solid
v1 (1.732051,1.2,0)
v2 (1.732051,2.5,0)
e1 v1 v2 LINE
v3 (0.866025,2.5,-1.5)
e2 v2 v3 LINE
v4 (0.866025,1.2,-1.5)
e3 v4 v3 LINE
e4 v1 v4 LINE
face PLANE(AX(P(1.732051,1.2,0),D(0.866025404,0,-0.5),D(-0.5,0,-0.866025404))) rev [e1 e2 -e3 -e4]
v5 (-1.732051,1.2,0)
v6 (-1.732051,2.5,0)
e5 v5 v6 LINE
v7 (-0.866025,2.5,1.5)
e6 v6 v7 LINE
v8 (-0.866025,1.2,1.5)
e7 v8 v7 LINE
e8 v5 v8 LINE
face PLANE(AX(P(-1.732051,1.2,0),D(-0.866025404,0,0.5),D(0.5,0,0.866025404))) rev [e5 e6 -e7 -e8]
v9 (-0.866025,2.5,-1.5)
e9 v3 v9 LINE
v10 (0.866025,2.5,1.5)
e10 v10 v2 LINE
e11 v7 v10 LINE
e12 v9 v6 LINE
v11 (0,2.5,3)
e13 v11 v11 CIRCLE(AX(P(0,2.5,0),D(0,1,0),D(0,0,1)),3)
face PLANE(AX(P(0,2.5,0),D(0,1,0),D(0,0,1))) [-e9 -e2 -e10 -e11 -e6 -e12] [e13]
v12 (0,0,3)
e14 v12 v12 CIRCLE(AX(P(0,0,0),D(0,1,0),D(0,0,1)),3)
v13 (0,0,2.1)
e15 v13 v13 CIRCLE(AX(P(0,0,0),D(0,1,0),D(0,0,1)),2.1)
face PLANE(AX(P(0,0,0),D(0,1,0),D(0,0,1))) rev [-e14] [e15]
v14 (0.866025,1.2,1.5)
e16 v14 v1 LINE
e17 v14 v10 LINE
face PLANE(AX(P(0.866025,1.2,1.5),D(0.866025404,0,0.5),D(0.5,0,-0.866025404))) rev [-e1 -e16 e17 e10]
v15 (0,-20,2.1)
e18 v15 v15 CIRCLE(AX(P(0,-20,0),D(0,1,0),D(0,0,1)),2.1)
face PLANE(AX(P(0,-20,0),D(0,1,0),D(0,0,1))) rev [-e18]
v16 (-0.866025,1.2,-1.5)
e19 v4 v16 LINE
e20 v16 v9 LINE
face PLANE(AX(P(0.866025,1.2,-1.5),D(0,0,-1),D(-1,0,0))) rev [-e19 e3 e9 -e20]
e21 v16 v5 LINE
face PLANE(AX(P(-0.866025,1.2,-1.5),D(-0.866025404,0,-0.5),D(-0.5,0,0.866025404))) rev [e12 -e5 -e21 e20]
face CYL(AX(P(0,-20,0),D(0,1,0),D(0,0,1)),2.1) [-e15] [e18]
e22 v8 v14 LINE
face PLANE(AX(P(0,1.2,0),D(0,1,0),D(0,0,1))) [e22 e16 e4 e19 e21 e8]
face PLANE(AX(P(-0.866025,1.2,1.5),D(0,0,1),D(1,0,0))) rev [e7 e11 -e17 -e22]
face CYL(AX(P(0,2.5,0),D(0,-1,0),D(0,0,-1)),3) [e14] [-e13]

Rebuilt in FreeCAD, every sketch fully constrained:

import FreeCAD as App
import Part
import Sketcher
Q = App.Units.Quantity


def add_polygon(sketch, points):
    """Adds a closed chain of lines whose ends are joined by coincident constraints."""
    first, n = sketch.GeometryCount, len(points)
    for a, b in zip(points, points[1:] + points[:1]):
        sketch.addGeometry(Part.LineSegment(App.Vector(*a, 0), App.Vector(*b, 0)), False)
    for i in range(n):
        sketch.addConstraint(Sketcher.Constraint("Coincident", first + i, 2, first + (i + 1) % n, 1))

doc = App.newDocument("Part")
body = doc.addObject("PartDesign::Body", "Body")

# Sketch on XZ plane
sketch1 = body.newObject("Sketcher::SketchObject", "Sketch")
sketch1.AttachmentSupport = (doc.getObject("XZ_Plane"), [""])
sketch1.MapMode = "FlatFace"
sketch1.addGeometry(Part.Circle(App.Vector(0, 0, 0), App.Vector(0, 0, 1), 3), False)
sketch1.addConstraint(Sketcher.Constraint("Coincident", 0, 3, -1, 1))
sketch1.addConstraint(Sketcher.Constraint("Diameter", 0, Q("6 mm")))
pad1 = body.newObject("PartDesign::Pad", "Pad")
pad1.Profile = sketch1
pad1.Length = 2.5
pad1.Reversed = True

# Sketch on XZ plane
sketch2 = body.newObject("Sketcher::SketchObject", "Sketch001")
sketch2.AttachmentSupport = (doc.getObject("XZ_Plane"), [""])
sketch2.MapMode = "FlatFace"
sketch2.addGeometry(Part.Circle(App.Vector(0, 0, 0), App.Vector(0, 0, 1), 2.1), False)
sketch2.addConstraint(Sketcher.Constraint("Coincident", 0, 3, -1, 1))
sketch2.addConstraint(Sketcher.Constraint("Diameter", 0, Q("4.2 mm")))
pad2 = body.newObject("PartDesign::Pad", "Pad001")
pad2.Profile = sketch2
pad2.Length = 20

# Sketch on XZ plane
sketch3 = body.newObject("Sketcher::SketchObject", "Sketch002")
sketch3.AttachmentSupport = (doc.getObject("XZ_Plane"), [""])
sketch3.MapMode = "FlatFace"
sketch3.AttachmentOffset = App.Placement(App.Vector(0, 0, -3.7), App.Rotation())
add_polygon(sketch3, [(1.7, 0), (0.9, -1.5), (-0.9, -1.5), (-1.7, 0), (-0.9, 1.5), (0.9, 1.5)])  # lines 0-5
sketch3.addConstraint(Sketcher.Constraint("Horizontal", 1))
sketch3.addConstraint(Sketcher.Constraint("Horizontal", 4))
sketch3.addConstraint(Sketcher.Constraint("Symmetric", 0, 2, 3, 2, -1, 1))
sketch3.addConstraint(Sketcher.Constraint("Symmetric", 2, 2, 5, 2, -1, 1))
sketch3.addConstraint(Sketcher.Constraint("PointOnObject", 2, 2, -1))
sketch3.addConstraint(Sketcher.Constraint("Parallel", 2, 5))
sketch3.addConstraint(Sketcher.Constraint("Vertical", 1, 2, 3, 2))
sketch3.addConstraint(Sketcher.Constraint("Angle", 0, Q("-120 deg")))
sketch3.addConstraint(Sketcher.Constraint("DistanceY", 1, 2, 3, 2, Q("3 mm")))
sketch3.addConstraint(Sketcher.Constraint("DistanceX", 1, 2, 1, 1, Q("1.732051 mm")))
pocket1 = body.newObject("PartDesign::Pocket", "Pocket")
pocket1.Profile = sketch3
pocket1.Length = 2.5
pocket1.Reversed = True

doc.recompute()
